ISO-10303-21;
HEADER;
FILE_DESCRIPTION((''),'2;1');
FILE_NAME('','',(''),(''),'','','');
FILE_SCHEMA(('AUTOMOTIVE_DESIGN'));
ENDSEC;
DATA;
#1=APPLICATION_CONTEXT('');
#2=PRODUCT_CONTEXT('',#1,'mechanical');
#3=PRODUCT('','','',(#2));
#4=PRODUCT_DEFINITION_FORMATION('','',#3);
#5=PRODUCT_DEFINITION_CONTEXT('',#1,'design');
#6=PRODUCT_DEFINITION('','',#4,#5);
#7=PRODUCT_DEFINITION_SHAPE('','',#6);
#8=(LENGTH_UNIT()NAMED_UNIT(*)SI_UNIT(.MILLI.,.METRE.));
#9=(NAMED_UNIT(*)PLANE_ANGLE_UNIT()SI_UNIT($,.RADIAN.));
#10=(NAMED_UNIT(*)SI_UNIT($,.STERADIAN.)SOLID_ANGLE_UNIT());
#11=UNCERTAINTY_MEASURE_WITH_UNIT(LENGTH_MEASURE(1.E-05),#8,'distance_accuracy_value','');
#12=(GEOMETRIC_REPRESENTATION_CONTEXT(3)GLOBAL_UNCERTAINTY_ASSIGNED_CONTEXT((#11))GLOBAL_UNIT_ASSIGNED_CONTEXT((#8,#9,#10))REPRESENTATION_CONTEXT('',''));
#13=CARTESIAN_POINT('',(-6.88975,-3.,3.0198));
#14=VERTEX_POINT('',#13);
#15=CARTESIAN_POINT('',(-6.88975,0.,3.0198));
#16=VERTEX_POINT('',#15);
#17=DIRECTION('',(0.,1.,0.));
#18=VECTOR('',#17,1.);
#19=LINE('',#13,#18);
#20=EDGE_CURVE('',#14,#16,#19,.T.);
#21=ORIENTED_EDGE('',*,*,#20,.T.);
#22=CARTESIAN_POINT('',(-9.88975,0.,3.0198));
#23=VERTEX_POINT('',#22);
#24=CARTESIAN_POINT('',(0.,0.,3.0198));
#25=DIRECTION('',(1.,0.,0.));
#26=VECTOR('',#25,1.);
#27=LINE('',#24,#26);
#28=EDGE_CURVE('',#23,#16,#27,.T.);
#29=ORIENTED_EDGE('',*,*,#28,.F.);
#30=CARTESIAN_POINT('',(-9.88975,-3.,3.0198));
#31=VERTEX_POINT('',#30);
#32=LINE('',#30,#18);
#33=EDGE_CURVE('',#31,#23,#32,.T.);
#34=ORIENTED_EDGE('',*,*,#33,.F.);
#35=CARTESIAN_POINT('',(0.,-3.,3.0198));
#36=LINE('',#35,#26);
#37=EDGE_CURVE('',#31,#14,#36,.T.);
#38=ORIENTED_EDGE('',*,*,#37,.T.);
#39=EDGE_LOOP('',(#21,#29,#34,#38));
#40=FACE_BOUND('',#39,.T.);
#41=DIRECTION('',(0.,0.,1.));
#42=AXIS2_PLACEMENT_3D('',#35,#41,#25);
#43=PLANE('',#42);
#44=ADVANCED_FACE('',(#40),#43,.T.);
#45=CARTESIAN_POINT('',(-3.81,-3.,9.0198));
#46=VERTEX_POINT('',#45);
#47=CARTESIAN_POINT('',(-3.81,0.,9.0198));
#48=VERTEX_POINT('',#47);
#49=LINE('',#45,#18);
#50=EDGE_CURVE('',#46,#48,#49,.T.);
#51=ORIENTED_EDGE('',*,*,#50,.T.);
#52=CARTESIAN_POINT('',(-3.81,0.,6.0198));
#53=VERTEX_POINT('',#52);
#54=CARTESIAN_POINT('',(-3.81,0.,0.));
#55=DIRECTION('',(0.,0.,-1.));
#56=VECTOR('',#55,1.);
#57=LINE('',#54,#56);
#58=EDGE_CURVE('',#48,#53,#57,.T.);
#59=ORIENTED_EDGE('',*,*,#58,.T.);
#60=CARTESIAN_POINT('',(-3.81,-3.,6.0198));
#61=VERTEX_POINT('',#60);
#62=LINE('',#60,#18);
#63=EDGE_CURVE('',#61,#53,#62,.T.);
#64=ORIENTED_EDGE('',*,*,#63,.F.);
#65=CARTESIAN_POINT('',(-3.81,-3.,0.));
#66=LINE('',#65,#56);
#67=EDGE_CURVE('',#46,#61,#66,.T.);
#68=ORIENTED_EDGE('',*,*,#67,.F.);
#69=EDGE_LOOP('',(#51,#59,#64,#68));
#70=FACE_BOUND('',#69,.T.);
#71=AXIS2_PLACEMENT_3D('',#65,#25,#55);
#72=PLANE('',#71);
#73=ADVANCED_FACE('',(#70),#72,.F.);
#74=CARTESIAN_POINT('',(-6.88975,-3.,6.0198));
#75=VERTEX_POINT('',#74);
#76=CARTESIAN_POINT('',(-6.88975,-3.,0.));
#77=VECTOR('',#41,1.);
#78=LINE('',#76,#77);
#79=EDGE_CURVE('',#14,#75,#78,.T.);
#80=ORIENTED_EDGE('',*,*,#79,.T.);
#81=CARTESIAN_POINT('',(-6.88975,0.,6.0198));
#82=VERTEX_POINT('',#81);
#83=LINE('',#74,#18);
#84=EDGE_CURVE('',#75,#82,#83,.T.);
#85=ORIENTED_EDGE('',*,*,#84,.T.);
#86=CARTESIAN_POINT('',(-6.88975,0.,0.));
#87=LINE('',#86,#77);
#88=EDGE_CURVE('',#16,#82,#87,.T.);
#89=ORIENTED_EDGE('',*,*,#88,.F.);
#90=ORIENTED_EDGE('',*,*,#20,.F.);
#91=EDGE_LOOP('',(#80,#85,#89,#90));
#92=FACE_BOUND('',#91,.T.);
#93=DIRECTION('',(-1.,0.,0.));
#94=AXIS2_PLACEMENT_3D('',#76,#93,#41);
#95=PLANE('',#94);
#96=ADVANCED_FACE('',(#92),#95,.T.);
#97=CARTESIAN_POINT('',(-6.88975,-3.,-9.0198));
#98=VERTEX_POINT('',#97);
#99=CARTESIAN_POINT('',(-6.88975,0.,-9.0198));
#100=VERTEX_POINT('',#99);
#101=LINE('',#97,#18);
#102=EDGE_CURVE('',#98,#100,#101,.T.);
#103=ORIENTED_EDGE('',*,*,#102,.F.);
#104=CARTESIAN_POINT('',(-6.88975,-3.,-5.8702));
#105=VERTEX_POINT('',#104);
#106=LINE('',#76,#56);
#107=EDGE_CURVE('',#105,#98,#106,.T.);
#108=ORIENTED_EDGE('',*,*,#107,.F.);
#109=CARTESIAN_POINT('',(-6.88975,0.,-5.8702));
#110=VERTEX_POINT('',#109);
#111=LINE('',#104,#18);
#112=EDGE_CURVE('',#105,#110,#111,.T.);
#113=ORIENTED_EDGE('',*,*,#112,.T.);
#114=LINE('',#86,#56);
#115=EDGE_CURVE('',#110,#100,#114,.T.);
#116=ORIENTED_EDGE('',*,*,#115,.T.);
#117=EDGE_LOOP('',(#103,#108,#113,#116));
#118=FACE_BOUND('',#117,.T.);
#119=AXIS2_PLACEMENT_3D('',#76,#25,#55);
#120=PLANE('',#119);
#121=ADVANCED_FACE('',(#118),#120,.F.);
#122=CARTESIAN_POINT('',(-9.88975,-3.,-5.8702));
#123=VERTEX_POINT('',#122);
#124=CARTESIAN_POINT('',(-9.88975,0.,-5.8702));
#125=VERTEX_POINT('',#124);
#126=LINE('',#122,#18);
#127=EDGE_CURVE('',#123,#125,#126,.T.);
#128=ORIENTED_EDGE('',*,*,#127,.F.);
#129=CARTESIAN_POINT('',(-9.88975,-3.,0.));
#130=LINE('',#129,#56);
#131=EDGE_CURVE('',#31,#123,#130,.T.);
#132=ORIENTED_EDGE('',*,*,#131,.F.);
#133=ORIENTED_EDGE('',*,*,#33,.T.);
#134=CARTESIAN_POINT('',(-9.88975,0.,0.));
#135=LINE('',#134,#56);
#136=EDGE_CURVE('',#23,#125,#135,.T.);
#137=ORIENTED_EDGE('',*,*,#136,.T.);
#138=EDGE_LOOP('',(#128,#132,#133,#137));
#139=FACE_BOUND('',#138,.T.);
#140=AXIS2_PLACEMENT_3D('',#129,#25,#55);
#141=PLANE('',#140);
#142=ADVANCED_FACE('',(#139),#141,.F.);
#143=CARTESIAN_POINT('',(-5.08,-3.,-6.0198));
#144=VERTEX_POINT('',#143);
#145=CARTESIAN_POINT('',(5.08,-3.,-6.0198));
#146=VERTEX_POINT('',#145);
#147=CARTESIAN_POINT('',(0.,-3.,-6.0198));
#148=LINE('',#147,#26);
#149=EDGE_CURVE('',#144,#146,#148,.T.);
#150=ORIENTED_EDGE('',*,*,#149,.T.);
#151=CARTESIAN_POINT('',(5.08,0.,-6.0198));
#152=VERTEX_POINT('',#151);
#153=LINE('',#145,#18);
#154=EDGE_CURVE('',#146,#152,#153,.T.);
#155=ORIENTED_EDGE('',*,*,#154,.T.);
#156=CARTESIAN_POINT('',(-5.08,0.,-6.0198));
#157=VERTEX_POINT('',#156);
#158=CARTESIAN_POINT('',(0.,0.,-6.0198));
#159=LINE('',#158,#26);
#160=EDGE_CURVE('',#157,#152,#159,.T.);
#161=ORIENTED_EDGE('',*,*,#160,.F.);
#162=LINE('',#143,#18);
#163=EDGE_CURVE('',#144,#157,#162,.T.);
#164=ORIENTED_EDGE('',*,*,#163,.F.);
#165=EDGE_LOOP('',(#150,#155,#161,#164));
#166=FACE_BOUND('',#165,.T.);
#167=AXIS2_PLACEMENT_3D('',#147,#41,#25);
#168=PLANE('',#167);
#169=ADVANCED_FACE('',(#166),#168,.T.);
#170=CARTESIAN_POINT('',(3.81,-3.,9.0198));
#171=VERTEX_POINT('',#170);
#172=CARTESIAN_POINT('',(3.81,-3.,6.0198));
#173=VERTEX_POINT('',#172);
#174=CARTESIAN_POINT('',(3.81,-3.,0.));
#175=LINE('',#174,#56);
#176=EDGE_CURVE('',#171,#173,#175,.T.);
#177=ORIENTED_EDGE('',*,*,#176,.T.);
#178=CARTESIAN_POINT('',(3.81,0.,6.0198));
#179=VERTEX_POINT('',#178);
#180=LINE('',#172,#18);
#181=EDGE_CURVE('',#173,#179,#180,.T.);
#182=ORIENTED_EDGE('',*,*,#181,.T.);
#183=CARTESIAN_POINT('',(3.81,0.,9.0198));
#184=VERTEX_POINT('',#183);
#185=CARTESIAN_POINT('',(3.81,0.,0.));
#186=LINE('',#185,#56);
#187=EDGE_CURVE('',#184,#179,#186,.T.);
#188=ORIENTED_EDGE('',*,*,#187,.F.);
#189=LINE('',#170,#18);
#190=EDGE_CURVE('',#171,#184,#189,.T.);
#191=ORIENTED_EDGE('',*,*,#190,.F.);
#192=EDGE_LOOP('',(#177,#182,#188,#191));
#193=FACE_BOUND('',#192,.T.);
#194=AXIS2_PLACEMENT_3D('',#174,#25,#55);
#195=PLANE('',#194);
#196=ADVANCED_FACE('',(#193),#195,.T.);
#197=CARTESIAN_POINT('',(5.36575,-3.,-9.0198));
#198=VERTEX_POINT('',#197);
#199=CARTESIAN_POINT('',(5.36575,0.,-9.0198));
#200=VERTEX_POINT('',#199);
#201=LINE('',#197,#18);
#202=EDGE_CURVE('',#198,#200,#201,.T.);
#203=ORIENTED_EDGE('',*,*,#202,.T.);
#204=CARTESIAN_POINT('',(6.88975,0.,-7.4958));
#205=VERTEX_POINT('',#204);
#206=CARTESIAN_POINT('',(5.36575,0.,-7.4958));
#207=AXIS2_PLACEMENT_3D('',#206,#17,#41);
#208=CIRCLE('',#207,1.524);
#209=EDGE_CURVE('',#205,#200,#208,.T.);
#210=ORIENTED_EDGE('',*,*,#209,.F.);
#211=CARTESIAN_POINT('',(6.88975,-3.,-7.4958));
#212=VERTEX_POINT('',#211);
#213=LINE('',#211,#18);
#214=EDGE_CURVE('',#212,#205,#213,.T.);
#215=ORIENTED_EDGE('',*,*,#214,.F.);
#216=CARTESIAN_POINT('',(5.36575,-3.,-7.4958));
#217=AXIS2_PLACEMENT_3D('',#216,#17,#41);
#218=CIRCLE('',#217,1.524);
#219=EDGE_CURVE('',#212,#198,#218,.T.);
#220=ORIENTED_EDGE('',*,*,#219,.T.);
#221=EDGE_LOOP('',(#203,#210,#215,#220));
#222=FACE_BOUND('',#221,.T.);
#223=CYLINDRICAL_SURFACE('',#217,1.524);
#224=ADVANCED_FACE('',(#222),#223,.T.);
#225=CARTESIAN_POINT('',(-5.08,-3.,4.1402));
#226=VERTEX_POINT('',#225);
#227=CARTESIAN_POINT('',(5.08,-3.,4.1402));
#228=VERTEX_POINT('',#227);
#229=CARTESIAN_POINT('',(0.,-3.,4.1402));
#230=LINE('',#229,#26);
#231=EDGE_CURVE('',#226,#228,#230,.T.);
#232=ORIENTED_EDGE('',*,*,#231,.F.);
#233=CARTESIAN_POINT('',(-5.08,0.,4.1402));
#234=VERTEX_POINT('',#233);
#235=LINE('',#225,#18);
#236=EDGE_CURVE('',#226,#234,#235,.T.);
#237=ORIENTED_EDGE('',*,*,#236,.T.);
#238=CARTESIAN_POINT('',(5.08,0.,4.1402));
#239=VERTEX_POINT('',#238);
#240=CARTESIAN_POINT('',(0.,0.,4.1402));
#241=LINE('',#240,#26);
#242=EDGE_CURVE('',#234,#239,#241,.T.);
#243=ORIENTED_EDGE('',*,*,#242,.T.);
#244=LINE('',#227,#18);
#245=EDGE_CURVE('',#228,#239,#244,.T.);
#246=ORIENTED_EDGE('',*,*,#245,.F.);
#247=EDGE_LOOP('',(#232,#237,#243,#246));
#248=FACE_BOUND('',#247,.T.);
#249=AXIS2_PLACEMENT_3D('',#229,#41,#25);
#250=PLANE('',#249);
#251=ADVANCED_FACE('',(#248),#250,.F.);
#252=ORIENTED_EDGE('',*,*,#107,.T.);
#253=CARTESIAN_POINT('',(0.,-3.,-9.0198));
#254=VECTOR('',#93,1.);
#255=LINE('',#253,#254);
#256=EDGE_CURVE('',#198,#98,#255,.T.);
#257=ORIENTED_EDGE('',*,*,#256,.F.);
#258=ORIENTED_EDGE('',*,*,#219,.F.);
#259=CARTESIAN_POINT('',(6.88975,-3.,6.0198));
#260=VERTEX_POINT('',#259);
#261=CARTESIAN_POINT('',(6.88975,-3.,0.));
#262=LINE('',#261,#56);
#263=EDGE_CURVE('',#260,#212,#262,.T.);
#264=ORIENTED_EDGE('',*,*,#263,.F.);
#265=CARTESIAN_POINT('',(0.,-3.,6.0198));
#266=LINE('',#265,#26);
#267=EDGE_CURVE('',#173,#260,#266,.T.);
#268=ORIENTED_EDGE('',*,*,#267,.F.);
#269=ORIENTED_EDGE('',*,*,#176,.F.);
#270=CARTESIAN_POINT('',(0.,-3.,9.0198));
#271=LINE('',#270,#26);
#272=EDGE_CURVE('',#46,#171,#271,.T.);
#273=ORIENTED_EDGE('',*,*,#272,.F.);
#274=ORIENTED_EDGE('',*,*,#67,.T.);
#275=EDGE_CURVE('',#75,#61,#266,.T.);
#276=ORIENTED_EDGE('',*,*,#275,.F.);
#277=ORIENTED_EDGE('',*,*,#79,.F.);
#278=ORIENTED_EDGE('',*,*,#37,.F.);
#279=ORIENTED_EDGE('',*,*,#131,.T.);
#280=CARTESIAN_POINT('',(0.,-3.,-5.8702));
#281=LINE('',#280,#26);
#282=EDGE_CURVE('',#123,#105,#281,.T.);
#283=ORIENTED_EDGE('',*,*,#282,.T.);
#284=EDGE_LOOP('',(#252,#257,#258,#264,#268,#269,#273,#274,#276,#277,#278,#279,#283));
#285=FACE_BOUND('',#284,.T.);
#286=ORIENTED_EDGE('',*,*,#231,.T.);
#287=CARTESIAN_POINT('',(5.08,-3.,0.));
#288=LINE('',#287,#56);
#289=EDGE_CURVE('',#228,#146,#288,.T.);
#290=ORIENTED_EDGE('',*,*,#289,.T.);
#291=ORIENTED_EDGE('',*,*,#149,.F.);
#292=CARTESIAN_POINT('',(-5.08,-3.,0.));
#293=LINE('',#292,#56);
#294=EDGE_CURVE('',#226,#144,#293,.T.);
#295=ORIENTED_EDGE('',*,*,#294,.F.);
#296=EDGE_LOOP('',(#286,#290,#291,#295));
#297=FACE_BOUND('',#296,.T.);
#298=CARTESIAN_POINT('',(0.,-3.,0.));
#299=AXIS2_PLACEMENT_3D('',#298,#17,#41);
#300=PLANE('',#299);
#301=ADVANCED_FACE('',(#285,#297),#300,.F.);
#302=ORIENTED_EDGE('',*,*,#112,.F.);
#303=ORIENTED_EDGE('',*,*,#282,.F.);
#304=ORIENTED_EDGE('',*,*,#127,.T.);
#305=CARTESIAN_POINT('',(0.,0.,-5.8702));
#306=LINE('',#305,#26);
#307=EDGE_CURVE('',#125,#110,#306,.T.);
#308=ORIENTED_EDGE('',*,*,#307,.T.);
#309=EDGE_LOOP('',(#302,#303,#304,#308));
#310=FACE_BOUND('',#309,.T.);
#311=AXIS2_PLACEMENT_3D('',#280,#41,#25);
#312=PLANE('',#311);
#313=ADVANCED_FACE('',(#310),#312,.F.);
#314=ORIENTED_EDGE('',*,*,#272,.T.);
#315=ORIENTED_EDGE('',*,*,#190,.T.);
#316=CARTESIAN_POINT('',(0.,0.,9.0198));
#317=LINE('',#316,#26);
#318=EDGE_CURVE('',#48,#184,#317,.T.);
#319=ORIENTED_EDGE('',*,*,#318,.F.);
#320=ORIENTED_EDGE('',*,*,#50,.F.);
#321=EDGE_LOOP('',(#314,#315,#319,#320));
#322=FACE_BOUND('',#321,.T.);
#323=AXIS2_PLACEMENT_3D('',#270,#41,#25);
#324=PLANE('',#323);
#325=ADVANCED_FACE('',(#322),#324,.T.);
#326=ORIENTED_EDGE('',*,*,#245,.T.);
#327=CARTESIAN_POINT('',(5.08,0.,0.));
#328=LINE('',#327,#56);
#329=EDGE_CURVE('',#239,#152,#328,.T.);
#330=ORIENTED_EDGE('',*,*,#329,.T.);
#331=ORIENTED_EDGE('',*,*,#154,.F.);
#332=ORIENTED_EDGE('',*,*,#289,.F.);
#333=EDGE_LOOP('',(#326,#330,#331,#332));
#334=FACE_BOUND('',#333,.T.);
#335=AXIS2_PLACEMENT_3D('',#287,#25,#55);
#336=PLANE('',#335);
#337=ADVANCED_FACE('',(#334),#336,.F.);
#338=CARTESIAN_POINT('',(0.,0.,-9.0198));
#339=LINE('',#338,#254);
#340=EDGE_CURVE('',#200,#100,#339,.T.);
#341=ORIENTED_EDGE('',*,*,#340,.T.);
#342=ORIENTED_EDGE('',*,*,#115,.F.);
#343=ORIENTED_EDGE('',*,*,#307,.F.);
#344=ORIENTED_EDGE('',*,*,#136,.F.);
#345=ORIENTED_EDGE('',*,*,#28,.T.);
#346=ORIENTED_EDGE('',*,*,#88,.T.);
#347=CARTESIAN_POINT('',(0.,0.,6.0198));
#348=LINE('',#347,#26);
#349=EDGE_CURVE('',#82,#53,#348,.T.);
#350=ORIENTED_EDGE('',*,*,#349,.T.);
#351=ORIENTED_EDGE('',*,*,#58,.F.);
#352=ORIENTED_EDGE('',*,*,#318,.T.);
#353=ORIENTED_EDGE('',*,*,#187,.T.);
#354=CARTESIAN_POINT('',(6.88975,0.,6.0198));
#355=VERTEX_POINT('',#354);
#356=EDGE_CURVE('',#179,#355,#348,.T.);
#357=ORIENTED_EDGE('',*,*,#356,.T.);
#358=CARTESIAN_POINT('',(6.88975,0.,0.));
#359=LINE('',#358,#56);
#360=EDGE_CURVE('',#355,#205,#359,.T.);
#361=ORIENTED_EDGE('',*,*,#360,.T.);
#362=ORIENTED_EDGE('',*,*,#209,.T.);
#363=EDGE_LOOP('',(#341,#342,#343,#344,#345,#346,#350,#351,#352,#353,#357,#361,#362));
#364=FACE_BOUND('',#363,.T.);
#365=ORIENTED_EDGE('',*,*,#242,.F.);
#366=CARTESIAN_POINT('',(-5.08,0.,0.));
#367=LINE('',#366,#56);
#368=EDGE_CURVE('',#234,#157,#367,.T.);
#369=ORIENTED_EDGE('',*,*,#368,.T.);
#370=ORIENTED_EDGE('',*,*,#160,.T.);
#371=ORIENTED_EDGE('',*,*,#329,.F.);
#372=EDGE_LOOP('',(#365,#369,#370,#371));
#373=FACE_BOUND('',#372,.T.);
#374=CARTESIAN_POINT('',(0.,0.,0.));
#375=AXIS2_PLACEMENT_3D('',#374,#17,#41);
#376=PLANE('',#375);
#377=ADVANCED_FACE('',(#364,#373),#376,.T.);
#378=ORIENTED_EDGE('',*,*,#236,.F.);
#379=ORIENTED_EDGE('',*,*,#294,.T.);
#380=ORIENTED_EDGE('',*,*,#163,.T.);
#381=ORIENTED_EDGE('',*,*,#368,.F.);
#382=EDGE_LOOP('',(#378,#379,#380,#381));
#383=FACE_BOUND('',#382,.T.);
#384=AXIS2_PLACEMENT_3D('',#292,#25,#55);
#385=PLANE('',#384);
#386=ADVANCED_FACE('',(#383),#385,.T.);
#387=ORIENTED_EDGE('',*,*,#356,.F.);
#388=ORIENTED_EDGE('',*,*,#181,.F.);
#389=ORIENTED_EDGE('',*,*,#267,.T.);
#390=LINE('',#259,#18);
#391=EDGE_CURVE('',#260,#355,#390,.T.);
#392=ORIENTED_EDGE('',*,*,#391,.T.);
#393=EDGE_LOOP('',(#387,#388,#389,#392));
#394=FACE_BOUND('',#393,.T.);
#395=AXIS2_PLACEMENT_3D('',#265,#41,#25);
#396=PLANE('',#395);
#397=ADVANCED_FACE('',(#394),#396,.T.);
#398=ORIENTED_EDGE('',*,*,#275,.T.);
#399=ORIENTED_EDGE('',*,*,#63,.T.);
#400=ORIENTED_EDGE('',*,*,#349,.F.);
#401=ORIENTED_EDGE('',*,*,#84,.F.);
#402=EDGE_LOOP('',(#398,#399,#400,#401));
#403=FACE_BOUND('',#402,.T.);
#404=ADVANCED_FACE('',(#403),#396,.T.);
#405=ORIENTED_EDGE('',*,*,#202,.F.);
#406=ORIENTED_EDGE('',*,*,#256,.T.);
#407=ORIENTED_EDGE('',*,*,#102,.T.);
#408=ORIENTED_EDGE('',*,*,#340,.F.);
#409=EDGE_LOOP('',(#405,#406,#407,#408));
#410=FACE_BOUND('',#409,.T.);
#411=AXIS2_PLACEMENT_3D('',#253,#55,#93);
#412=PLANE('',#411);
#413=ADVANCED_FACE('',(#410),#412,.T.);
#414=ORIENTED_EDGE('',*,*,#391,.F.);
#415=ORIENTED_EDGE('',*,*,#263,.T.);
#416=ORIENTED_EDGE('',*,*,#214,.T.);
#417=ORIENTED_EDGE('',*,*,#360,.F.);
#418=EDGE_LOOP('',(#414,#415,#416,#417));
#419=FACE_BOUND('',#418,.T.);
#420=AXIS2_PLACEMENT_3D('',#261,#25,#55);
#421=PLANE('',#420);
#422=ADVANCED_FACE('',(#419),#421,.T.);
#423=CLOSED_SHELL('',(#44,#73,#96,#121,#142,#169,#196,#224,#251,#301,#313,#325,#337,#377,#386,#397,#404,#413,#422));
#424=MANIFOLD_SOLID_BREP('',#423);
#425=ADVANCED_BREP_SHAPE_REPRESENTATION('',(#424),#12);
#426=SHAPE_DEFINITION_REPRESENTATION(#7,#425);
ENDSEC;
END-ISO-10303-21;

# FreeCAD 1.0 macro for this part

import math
import FreeCAD as App
import Part
import Sketcher

V = App.Vector
Q = App.Units.Quantity


def add_polygon(sketch, points):
    """Adds a closed chain of lines whose ends are joined by coincident constraints."""
    first, n = sketch.GeometryCount, len(points)
    for a, b in zip(points, points[1:] + points[:1]):
        sketch.addGeometry(Part.LineSegment(App.Vector(*a, 0), App.Vector(*b, 0)), False)
    for i in range(n):
        sketch.addConstraint(Sketcher.Constraint("Coincident", first + i, 2, first + (i + 1) % n, 1))

doc = App.newDocument("Part")
body = doc.addObject("PartDesign::Body", "Body")

# Sketch on XZ plane
sketch1 = body.newObject("Sketcher::SketchObject", "Sketch")
sketch1.AttachmentSupport = (doc.getObject("XZ_Plane"), [""])
sketch1.MapMode = "FlatFace"
sketch1.addGeometry(Part.ArcOfCircle(Part.Circle(V(5.4, -7.5, 0), V(0, 0, 1), 1.5), math.radians(-90), math.radians(0)), False)  # 0
sketch1.addGeometry(Part.LineSegment(V(5.4, -9, 0), V(-6.9, -9, 0)), False)  # 1
sketch1.addGeometry(Part.LineSegment(V(-6.9, -9, 0), V(-6.9, -5.9, 0)), False)  # 2
sketch1.addGeometry(Part.LineSegment(V(-6.9, -5.9, 0), V(-9.9, -5.9, 0)), False)  # 3
sketch1.addGeometry(Part.LineSegment(V(-9.9, -5.9, 0), V(-9.9, 3, 0)), False)  # 4
sketch1.addGeometry(Part.LineSegment(V(-9.9, 3, 0), V(-6.9, 3, 0)), False)  # 5
sketch1.addGeometry(Part.LineSegment(V(-6.9, 3, 0), V(-6.9, 6, 0)), False)  # 6
sketch1.addGeometry(Part.LineSegment(V(-6.9, 6, 0), V(-3.8, 6, 0)), False)  # 7
sketch1.addGeometry(Part.LineSegment(V(-3.8, 6, 0), V(-3.8, 9, 0)), False)  # 8
sketch1.addGeometry(Part.LineSegment(V(-3.8, 9, 0), V(3.8, 9, 0)), False)  # 9
sketch1.addGeometry(Part.LineSegment(V(3.8, 9, 0), V(3.8, 6, 0)), False)  # 10
sketch1.addGeometry(Part.LineSegment(V(3.8, 6, 0), V(6.9, 6, 0)), False)  # 11
sketch1.addGeometry(Part.LineSegment(V(6.9, 6, 0), V(6.9, -7.5, 0)), False)  # 12
add_polygon(sketch1, [(5.1, 4.1), (-5.1, 4.1), (-5.1, -6), (5.1, -6)])  # lines 13-16
sketch1.addConstraint(Sketcher.Constraint("Tangent", 0, 1, 1, 1))
sketch1.addConstraint(Sketcher.Constraint("Coincident", 1, 2, 2, 1))
sketch1.addConstraint(Sketcher.Constraint("Coincident", 2, 2, 3, 1))
sketch1.addConstraint(Sketcher.Constraint("Coincident", 3, 2, 4, 1))
sketch1.addConstraint(Sketcher.Constraint("Coincident", 4, 2, 5, 1))
sketch1.addConstraint(Sketcher.Constraint("Coincident", 5, 2, 6, 1))
sketch1.addConstraint(Sketcher.Constraint("Coincident", 6, 2, 7, 1))
sketch1.addConstraint(Sketcher.Constraint("Coincident", 7, 2, 8, 1))
sketch1.addConstraint(Sketcher.Constraint("Coincident", 8, 2, 9, 1))
sketch1.addConstraint(Sketcher.Constraint("Coincident", 9, 2, 10, 1))
sketch1.addConstraint(Sketcher.Constraint("Coincident", 10, 2, 11, 1))
sketch1.addConstraint(Sketcher.Constraint("Coincident", 11, 2, 12, 1))
sketch1.addConstraint(Sketcher.Constraint("Tangent", 12, 2, 0, 2))
sketch1.addConstraint(Sketcher.Constraint("Horizontal", 1))
sketch1.addConstraint(Sketcher.Constraint("Vertical", 2))
sketch1.addConstraint(Sketcher.Constraint("Horizontal", 3))
sketch1.addConstraint(Sketcher.Constraint("Vertical", 4))
sketch1.addConstraint(Sketcher.Constraint("Horizontal", 5))
sketch1.addConstraint(Sketcher.Constraint("Vertical", 6))
sketch1.addConstraint(Sketcher.Constraint("Horizontal", 7))
sketch1.addConstraint(Sketcher.Constraint("Vertical", 8))
sketch1.addConstraint(Sketcher.Constraint("Horizontal", 9))
sketch1.addConstraint(Sketcher.Constraint("Vertical", 10))
sketch1.addConstraint(Sketcher.Constraint("Horizontal", 11))
sketch1.addConstraint(Sketcher.Constraint("Vertical", 12))
sketch1.addConstraint(Sketcher.Constraint("Horizontal", 13))
sketch1.addConstraint(Sketcher.Constraint("Vertical", 14))
sketch1.addConstraint(Sketcher.Constraint("Horizontal", 15))
sketch1.addConstraint(Sketcher.Constraint("Vertical", 16))
sketch1.addConstraint(Sketcher.Constraint("Symmetric", 7, 2, 10, 2, -2))
sketch1.addConstraint(Sketcher.Constraint("Vertical", 2, 2, 5, 2))
sketch1.addConstraint(Sketcher.Constraint("Equal", 7, 11))
sketch1.addConstraint(Sketcher.Constraint("Equal", 5, 6))
sketch1.addConstraint(Sketcher.Constraint("Equal", 6, 8))
sketch1.addConstraint(Sketcher.Constraint("Equal", 15, 14))
sketch1.addConstraint(Sketcher.Constraint("Radius", 0, Q("0.06 in")))
sketch1.addConstraint(Sketcher.Constraint("DistanceX", 9, 1, 9, 2, Q("0.3 in")))
sketch1.addConstraint(Sketcher.Constraint("DistanceX", 13, 2, 13, 1, Q("0.4 in")))
sketch1.addConstraint(Sketcher.Constraint("DistanceY", 4, 1, 4, 2, Q("0.35 in")))
sketch1.addConstraint(Sketcher.Constraint("DistanceX", 13, 2, -1, 1, Q("0.2 in")))
sketch1.addConstraint(Sketcher.Constraint("DistanceY", 2, 1, 2, 2, Q("0.124 in")))
sketch1.addConstraint(Sketcher.Constraint("DistanceX", 1, 2, 1, 1, Q("0.4825 in")))
sketch1.addConstraint(Sketcher.Constraint("DistanceY", -1, 1, 6, 2, Q("0.237 in")))
sketch1.addConstraint(Sketcher.Constraint("DistanceY", -1, 1, 13, 2, Q("0.163 in")))
sketch1.addConstraint(Sketcher.Constraint("DistanceX", 3, 2, 3, 1, Q("3 mm")))
pad1 = body.newObject("PartDesign::Pad", "Pad")
pad1.Profile = sketch1
pad1.Length = 3

doc.recompute()
